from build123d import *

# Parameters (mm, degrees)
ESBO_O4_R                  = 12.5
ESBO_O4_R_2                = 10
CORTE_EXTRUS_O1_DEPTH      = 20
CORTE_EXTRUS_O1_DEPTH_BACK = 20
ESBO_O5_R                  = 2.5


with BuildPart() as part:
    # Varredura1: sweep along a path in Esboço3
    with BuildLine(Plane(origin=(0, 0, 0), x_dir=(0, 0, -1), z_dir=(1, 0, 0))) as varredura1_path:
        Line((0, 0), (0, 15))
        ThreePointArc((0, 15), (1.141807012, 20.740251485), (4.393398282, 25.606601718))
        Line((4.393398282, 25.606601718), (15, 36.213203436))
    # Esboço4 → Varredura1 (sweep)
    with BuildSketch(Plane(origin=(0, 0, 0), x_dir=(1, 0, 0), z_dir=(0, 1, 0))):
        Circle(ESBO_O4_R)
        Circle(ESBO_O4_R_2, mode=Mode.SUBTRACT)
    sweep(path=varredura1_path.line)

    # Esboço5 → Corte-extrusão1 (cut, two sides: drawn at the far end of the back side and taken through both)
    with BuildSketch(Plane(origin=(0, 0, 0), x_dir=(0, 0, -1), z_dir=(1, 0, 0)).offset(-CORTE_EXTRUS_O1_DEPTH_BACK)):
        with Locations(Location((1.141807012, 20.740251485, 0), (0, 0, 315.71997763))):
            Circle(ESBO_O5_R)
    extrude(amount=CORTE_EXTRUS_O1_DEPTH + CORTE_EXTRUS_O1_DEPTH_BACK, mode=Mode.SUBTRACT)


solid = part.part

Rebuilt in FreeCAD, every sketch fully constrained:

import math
import FreeCAD as App
import Part
import Sketcher
from FreeCAD import Vector
Q = App.Units.Quantity

doc = App.newDocument("Part")
body = doc.addObject("PartDesign::Body", "Body")

sketch1 = body.newObject("Sketcher::SketchObject", "Sketch")
sketch1.AttachmentSupport = (doc.getObject("XZ_Plane"), [""])
sketch1.MapMode = "FlatFace"
sketch1.addGeometry([
    Part.Circle(Vector(0, 0, 0), Vector(0, 0, 1), 12),
    Part.Circle(Vector(0, 0, 0), Vector(0, 0, 1), 10),
], False)
sketch1.addConstraint([
    Sketcher.Constraint("Coincident", 0, 3, -1, 1),
    Sketcher.Constraint("Coincident", 1, 3, -1, 1),
    Sketcher.Constraint("Diameter", 0, Q("25 mm")),
    Sketcher.Constraint("Diameter", 1, Q("20 mm")),
])

sketch2 = body.newObject("Sketcher::SketchObject", "Sketch001")
sketch2.AttachmentSupport = (doc.getObject("YZ_Plane"), [""])
sketch2.MapMode = "FlatFace"
sketch2.addGeometry([
    Part.LineSegment(Vector(0, 0, 0), Vector(15, 0, 0)),
    Part.ArcOfCircle(Part.Circle(Vector(15, -15, 0), Vector(0, 0, 1), 15), math.radians(45), math.radians(90)),
    Part.LineSegment(Vector(26, -4, 0), Vector(36, -15, 0)),
], False)
sketch2.addConstraint([
    Sketcher.Constraint("Tangent", 0, 2, 1, 2),
    Sketcher.Constraint("Tangent", 1, 1, 2, 1),
    Sketcher.Constraint("Horizontal", 0),
    Sketcher.Constraint("Coincident", 0, 1, -1, 1),
    Sketcher.Constraint("Horizontal", 1, 3, 2, 2),
    Sketcher.Constraint("Radius", 1, Q("15 mm")),
    Sketcher.Constraint("DistanceX", 0, 1, 0, 2, Q("15 mm")),
    Sketcher.Constraint("Angle", 2, Q("-45 deg")),
])
doc.recompute()

additivepipe = body.newObject("PartDesign::AdditivePipe", "AdditivePipe")
additivepipe.Profile = sketch1
additivepipe.Spine = (sketch2, ["Edge1", "Edge2", "Edge3"])

sketch3 = body.newObject("Sketcher::SketchObject", "Sketch002")
sketch3.AttachmentSupport = (doc.getObject("YZ_Plane"), [""])
sketch3.MapMode = "FlatFace"
sketch3.addGeometry(Part.Circle(Vector(20.7, -1.1, 0), Vector(0, 0, 1), 2.5), False)
sketch3.addConstraint([
    Sketcher.Constraint("Diameter", 0, Q("5 mm")),
    Sketcher.Constraint("DistanceX", -1, 1, 0, 3, Q("20.740251 mm")),
    Sketcher.Constraint("DistanceY", 0, 3, -1, 1, Q("1.141807 mm")),
])
pocket1 = body.newObject("PartDesign::Pocket", "Pocket")
pocket1.Profile = sketch3
pocket1.Type = "ThroughAll"
pocket1.Midplane = True

doc.recompute()
